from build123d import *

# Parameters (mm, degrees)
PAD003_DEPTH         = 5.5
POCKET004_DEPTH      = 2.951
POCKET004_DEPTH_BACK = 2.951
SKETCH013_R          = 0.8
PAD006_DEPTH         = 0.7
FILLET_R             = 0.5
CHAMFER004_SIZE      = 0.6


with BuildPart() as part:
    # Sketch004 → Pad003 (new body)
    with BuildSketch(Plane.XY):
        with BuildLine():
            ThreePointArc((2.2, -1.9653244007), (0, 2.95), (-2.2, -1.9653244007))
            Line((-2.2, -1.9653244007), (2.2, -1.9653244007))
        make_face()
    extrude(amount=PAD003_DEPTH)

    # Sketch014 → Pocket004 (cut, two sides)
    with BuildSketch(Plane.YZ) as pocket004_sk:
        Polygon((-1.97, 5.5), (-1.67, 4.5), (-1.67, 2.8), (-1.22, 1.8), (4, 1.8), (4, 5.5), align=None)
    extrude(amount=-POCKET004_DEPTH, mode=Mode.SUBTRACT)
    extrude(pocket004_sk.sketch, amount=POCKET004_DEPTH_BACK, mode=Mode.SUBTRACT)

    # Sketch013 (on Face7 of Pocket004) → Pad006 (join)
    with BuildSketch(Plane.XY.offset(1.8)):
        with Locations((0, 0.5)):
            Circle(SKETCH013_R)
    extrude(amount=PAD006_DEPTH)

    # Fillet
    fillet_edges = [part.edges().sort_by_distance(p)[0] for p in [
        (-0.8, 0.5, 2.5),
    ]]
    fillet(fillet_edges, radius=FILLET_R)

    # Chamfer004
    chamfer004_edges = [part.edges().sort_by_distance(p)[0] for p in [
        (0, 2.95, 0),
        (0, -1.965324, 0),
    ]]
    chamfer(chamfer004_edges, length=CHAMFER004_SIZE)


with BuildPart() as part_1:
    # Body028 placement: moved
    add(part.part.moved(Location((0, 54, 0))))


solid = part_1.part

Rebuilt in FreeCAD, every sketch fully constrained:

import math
import FreeCAD as App
import Part
import Sketcher

V = App.Vector


def edges_at(feature, points):
    """Names of the edges that pass closest to the given points."""
    edges = feature.Shape.Edges
    near = lambda p: min(range(len(edges)), key=lambda i: edges[i].distToShape(Part.Vertex(*p))[0])
    return sorted({f"Edge{near(p) + 1}" for p in points})

doc = App.newDocument("Part")
body = doc.addObject("PartDesign::Body", "Body")

sketch1 = body.newObject("Sketcher::SketchObject", "Sketch")
sketch1.AttachmentSupport = (doc.getObject("XY_Plane"), [""])
sketch1.MapMode = "FlatFace"
sketch1.addGeometry(Part.ArcOfCircle(Part.Circle(V(0, 0, 0), V(0, 0, 1), 2.95), math.radians(-41.775348), math.radians(221.775348)), False)
sketch1.addGeometry(Part.LineSegment(V(-2.2, -1.965324, 0), V(2.2, -1.965324, 0)), False)
sketch1.addConstraint(Sketcher.Constraint("Coincident", 0, 1, 1, 2))
sketch1.addConstraint(Sketcher.Constraint("Coincident", 1, 1, 0, 2))
sketch1.addConstraint(Sketcher.Constraint("Horizontal", 1))
sketch1.addConstraint(Sketcher.Constraint("Coincident", 0, 3, -1, 1))
sketch1.addConstraint(Sketcher.Constraint("Radius", 0, 2.95))
sketch1.addConstraint(Sketcher.Constraint("DistanceX", 1, 1, 1, 2, 4.4))
pad1 = body.newObject("PartDesign::Pad", "Pad")
pad1.Profile = sketch1
pad1.Length = 5.5

sketch2 = body.newObject("Sketcher::SketchObject", "Sketch001")
sketch2.AttachmentSupport = (doc.getObject("YZ_Plane"), [""])
sketch2.MapMode = "FlatFace"
sketch2.addGeometry(Part.LineSegment(V(-1.97, 5.5, 0), V(-1.67, 4.5, 0)), False)
sketch2.addGeometry(Part.LineSegment(V(-1.67, 4.5, 0), V(-1.67, 2.8, 0)), False)
sketch2.addGeometry(Part.LineSegment(V(-1.67, 2.8, 0), V(-1.22, 1.8, 0)), False)
sketch2.addGeometry(Part.LineSegment(V(-1.22, 1.8, 0), V(4, 1.8, 0)), False)
sketch2.addGeometry(Part.LineSegment(V(4, 1.8, 0), V(4, 5.5, 0)), False)
sketch2.addGeometry(Part.LineSegment(V(4, 5.5, 0), V(-1.97, 5.5, 0)), False)
sketch2.addConstraint(Sketcher.Constraint("Coincident", 0, 2, 1, 1))
sketch2.addConstraint(Sketcher.Constraint("Coincident", 1, 2, 2, 1))
sketch2.addConstraint(Sketcher.Constraint("Coincident", 2, 2, 3, 1))
sketch2.addConstraint(Sketcher.Constraint("Coincident", 3, 2, 4, 1))
sketch2.addConstraint(Sketcher.Constraint("Coincident", 4, 2, 5, 1))
sketch2.addConstraint(Sketcher.Constraint("Coincident", 5, 2, 0, 1))
sketch2.addConstraint(Sketcher.Constraint("Vertical", 1))
sketch2.addConstraint(Sketcher.Constraint("Horizontal", 3))
sketch2.addConstraint(Sketcher.Constraint("Vertical", 4))
sketch2.addConstraint(Sketcher.Constraint("Horizontal", 5))
sketch2.addConstraint(Sketcher.Constraint("DistanceY", 1, 2, 1, 1, 1.7))
sketch2.addConstraint(Sketcher.Constraint("DistanceY", 4, 1, 4, 2, 3.7))
sketch2.addConstraint(Sketcher.Constraint("DistanceX", -1, 1, 3, 2, 4.0))
sketch2.addConstraint(Sketcher.Constraint("DistanceY", 2, 2, 1, 2, 1.0))
sketch2.addConstraint(Sketcher.Constraint("DistanceX", 3, 1, 3, 2, 5.22))
sketch2.addConstraint(Sketcher.Constraint("DistanceX", 5, 2, 5, 1, 5.97))
sketch2.addConstraint(Sketcher.Constraint("DistanceY", -1, 1, 0, 2, 4.5))
sketch2.addConstraint(Sketcher.Constraint("DistanceX", 5, 2, 0, 2, 0.3))
pocket1 = body.newObject("PartDesign::Pocket", "Pocket")
pocket1.Profile = sketch2
pocket1.Type = "ThroughAll"
pocket1.Midplane = True

sketch3 = body.newObject("Sketcher::SketchObject", "Sketch002")
sketch3.AttachmentSupport = (doc.getObject("XY_Plane"), [""])
sketch3.MapMode = "FlatFace"
sketch3.AttachmentOffset = App.Placement(V(0, 0, 1.8), App.Rotation())
sketch3.addGeometry(Part.Circle(V(0, 0.5, 0), V(0, 0, 1), 0.8), False)
sketch3.addConstraint(Sketcher.Constraint("PointOnObject", 0, 3, -2))
sketch3.addConstraint(Sketcher.Constraint("Diameter", 0, 1.6))
sketch3.addConstraint(Sketcher.Constraint("DistanceY", -1, 1, 0, 3, 0.5))
pad2 = body.newObject("PartDesign::Pad", "Pad001")
pad2.Profile = sketch3
pad2.Length = 0.7
doc.recompute()

fillet = body.newObject("PartDesign::Fillet", "Fillet")
fillet.Base = (pad2, edges_at(pad2, [(-0.8, 0.5, 2.5)]))
fillet.Radius = 0.5
doc.recompute()

chamfer = body.newObject("PartDesign::Chamfer", "Chamfer")
chamfer.Base = (fillet, edges_at(fillet, [(0, 2.95, 0), (0, -1.965, 0)]))
chamfer.Size = 0.6
body2 = doc.addObject("PartDesign::Body", "Body001")
doc.recompute()

body.Placement = App.Placement(V(0, 54, 0), App.Rotation(V(0, 0, 1), 0))
boolean = body2.newObject("PartDesign::Boolean", "Boolean")
boolean.Type = "Fuse"
boolean.addObjects([body])

doc.recompute()
